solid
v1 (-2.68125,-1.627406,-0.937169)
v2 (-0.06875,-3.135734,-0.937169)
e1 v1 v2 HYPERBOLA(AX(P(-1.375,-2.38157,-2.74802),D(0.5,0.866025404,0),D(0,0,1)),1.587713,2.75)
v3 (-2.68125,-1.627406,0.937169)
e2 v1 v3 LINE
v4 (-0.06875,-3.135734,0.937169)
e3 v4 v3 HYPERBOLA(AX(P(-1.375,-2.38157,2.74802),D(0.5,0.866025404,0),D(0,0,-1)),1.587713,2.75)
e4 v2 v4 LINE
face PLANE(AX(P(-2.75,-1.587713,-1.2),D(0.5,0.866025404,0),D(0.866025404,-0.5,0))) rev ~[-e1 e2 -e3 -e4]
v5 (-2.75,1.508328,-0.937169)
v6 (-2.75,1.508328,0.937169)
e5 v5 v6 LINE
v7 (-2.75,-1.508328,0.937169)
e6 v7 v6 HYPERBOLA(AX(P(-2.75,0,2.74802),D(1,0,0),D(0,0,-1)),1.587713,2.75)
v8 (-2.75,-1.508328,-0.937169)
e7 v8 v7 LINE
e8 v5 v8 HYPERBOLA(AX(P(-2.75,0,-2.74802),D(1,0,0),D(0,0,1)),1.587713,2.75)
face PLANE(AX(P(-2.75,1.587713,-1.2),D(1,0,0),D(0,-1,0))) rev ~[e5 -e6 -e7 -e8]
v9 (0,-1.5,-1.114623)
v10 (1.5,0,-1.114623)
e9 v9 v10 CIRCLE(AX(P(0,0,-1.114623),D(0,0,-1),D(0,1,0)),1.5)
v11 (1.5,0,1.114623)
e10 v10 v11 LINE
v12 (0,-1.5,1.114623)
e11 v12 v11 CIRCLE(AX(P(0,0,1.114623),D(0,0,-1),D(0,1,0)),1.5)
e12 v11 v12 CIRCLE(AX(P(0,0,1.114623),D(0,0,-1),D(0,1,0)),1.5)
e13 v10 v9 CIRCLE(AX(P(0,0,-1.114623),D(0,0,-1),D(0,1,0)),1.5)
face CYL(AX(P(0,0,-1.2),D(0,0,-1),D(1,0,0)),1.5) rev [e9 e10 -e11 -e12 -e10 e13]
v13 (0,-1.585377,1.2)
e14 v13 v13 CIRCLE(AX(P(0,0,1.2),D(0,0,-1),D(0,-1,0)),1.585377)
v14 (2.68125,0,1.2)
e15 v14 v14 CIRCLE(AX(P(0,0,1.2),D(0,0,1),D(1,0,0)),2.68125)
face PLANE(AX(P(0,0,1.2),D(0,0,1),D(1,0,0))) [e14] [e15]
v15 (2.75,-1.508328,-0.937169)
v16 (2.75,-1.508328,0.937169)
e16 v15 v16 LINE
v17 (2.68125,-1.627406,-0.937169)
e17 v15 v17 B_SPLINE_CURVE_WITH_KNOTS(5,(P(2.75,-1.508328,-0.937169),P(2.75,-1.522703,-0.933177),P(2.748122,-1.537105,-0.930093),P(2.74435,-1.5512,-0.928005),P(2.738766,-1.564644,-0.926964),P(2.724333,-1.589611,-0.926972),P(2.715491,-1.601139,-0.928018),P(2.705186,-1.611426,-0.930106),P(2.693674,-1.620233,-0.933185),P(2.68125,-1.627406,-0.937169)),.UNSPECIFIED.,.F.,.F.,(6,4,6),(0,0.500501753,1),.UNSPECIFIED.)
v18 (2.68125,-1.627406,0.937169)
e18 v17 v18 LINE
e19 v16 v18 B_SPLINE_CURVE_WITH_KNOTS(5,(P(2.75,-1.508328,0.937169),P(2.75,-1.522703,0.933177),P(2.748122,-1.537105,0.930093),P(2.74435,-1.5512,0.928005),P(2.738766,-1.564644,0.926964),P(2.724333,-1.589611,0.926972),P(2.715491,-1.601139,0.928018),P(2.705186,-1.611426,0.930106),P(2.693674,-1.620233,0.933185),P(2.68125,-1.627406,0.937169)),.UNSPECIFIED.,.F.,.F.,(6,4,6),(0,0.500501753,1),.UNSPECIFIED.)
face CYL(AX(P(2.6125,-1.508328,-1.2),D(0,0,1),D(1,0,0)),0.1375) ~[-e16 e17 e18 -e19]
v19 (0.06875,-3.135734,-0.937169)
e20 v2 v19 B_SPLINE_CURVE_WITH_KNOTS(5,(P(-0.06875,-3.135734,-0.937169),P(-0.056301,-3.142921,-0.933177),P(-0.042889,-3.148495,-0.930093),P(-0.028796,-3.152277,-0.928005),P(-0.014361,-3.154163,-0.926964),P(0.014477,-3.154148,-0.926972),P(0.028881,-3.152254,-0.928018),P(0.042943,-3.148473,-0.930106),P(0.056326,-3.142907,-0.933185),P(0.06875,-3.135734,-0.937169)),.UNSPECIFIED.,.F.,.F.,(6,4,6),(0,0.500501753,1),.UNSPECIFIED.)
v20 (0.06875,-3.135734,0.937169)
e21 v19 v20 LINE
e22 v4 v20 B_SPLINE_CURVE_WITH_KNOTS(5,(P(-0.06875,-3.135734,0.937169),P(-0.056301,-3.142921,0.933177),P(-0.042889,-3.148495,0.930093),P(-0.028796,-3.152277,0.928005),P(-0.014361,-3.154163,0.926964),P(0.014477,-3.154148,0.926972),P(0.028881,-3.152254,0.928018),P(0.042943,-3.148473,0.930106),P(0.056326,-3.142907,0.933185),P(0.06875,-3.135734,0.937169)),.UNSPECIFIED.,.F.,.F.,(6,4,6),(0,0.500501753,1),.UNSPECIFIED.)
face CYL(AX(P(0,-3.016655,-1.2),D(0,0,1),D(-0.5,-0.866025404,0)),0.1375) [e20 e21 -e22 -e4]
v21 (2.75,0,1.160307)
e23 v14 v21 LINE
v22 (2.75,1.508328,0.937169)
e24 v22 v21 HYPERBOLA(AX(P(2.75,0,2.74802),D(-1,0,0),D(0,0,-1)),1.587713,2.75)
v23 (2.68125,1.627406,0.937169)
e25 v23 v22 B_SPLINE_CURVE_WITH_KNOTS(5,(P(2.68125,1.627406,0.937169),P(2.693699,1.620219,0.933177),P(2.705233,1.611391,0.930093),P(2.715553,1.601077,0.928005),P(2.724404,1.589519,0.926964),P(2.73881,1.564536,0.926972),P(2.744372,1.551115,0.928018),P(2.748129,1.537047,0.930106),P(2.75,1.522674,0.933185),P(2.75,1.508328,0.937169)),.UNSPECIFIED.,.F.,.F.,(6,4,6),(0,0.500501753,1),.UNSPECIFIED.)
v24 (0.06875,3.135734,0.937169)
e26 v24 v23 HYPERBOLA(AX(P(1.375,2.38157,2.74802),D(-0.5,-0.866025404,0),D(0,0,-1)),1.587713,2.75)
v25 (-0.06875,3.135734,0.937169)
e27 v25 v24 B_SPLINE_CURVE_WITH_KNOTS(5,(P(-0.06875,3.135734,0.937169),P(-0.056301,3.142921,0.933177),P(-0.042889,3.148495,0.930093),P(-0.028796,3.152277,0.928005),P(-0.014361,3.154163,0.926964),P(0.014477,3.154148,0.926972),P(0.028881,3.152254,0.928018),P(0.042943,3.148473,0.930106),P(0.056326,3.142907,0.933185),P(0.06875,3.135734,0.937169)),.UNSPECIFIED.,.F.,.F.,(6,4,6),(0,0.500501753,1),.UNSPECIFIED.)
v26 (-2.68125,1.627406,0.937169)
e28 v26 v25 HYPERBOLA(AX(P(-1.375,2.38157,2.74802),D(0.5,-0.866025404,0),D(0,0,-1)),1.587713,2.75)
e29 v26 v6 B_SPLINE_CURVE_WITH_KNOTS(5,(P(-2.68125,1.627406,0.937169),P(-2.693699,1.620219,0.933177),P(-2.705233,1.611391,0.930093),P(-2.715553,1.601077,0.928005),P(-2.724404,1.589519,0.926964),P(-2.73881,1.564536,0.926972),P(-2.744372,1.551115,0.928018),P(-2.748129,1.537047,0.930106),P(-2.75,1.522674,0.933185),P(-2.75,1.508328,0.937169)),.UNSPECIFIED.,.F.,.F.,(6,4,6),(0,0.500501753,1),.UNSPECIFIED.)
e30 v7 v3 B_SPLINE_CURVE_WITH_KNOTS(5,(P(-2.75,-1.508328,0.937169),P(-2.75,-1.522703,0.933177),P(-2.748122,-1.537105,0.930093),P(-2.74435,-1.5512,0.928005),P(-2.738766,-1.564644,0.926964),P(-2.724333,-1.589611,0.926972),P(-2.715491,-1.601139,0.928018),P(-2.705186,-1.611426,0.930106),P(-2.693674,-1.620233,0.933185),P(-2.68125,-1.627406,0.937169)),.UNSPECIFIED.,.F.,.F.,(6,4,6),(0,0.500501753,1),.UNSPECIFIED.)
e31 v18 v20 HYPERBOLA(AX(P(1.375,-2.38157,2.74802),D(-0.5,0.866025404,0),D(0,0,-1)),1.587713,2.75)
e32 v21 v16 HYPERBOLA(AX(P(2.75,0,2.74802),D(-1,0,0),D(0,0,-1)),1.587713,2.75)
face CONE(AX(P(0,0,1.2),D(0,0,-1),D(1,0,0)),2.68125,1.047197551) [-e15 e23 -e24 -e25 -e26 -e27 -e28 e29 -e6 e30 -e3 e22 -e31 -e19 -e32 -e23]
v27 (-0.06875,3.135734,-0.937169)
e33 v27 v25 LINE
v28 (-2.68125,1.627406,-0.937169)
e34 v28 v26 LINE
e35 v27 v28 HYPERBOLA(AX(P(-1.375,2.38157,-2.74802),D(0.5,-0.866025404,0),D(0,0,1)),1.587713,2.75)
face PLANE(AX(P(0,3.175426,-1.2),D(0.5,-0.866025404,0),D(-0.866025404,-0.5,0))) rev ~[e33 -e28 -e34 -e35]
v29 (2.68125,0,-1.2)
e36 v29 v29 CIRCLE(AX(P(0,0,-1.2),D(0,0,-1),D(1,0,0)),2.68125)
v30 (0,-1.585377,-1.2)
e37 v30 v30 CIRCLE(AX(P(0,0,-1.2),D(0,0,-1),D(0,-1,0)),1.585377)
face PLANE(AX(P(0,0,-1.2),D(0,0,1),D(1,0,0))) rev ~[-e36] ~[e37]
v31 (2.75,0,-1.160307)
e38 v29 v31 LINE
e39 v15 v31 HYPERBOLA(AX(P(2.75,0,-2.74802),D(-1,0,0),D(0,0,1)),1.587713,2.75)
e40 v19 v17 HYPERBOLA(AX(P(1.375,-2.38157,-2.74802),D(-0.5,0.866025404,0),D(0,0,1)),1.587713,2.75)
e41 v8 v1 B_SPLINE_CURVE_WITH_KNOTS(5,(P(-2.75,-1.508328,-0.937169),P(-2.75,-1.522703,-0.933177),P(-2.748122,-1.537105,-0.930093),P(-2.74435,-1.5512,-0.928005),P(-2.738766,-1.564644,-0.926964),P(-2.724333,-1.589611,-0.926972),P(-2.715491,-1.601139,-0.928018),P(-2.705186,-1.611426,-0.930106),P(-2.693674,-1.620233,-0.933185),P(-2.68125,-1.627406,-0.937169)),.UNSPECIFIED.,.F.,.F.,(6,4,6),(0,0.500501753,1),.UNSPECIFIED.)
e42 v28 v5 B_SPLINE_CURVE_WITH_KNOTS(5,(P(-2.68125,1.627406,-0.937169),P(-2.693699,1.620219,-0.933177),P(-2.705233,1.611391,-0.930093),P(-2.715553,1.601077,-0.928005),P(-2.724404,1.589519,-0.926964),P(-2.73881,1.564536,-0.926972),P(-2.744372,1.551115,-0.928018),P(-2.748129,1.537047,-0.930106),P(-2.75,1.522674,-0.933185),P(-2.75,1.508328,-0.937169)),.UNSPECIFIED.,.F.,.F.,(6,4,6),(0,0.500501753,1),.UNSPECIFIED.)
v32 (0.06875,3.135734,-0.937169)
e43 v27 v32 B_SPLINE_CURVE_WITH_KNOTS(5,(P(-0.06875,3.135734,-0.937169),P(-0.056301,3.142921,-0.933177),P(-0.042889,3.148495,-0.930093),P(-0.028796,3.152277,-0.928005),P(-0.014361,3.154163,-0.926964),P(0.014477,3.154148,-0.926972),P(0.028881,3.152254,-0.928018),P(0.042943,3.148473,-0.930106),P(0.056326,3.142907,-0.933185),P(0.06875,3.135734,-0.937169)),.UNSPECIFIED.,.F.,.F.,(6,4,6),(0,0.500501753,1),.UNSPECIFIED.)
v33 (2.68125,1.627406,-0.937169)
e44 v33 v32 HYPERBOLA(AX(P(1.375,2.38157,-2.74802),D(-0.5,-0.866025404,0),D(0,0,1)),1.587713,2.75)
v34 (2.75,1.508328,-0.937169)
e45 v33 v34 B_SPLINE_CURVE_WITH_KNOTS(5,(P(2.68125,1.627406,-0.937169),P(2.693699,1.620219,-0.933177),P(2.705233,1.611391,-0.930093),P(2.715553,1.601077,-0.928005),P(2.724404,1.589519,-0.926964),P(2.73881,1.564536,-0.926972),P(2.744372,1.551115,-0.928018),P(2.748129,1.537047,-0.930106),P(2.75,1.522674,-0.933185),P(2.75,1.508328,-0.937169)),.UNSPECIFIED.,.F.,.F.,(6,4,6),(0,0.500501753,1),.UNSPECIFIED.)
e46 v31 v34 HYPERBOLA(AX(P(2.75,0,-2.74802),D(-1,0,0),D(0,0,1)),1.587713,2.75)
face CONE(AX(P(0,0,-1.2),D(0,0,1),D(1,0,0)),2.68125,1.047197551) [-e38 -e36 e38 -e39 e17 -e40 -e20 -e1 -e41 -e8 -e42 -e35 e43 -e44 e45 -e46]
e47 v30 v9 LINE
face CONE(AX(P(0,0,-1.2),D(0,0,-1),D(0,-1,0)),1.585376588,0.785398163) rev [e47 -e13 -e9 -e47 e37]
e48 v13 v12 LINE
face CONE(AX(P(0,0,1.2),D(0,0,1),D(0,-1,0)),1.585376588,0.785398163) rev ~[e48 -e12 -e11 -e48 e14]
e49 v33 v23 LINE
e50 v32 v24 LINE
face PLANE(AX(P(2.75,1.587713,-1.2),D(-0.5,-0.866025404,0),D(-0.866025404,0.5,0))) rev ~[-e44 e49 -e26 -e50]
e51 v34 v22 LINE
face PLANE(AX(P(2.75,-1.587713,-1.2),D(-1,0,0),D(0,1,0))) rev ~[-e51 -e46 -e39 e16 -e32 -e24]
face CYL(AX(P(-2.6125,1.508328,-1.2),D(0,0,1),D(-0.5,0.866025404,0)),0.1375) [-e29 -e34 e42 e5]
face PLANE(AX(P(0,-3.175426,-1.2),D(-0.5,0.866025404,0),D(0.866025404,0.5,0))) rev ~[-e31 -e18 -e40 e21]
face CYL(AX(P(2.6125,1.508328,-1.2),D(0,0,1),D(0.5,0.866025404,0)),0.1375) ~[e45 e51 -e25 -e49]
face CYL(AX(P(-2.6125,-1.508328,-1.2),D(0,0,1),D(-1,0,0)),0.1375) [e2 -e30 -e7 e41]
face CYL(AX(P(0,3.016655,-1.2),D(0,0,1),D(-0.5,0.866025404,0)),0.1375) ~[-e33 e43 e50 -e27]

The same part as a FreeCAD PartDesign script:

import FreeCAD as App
import Part
import Sketcher
from FreeCAD import Vector
Q = App.Units.Quantity


def edges_at(feature, points):
    """Names of the edges that pass closest to the given points."""
    edges = feature.Shape.Edges
    near = lambda p: min(range(len(edges)), key=lambda i: edges[i].distToShape(Part.Vertex(*p))[0])
    return sorted({f"Edge{near(p) + 1}" for p in points})


def faces_at(feature, points):
    """Names of the faces that lie closest to the given points."""
    faces = feature.Shape.Faces
    near = lambda p: min(range(len(faces)), key=lambda i: faces[i].distToShape(Part.Vertex(*p))[0])
    return sorted({f"Face{near(p) + 1}" for p in points})

doc = App.newDocument("Part")
body = doc.addObject("PartDesign::Body", "Body")

sketch1 = body.newObject("Sketcher::SketchObject", "Sketch")
sketch1.AttachmentSupport = (doc.getObject("XY_Plane"), [""])
sketch1.MapMode = "FlatFace"
sketch1.addGeometry([
    Part.LineSegment(Vector(0, 3.2, 0), Vector(-2.8, 1.6, 0)),
    Part.LineSegment(Vector(-2.8, 1.6, 0), Vector(-2.8, -1.6, 0)),
    Part.LineSegment(Vector(-2.8, -1.6, 0), Vector(0, -3.2, 0)),
    Part.LineSegment(Vector(0, -3.2, 0), Vector(2.8, -1.6, 0)),
    Part.LineSegment(Vector(2.8, -1.6, 0), Vector(2.8, 1.6, 0)),
    Part.LineSegment(Vector(2.8, 1.6, 0), Vector(0, 3.2, 0)),
    Part.Circle(Vector(0, 0, 0), Vector(0, 0, 1), 1.5),
], False)
sketch1.addConstraint([
    Sketcher.Constraint("Coincident", 0, 2, 1, 1),
    Sketcher.Constraint("Coincident", 1, 2, 2, 1),
    Sketcher.Constraint("Coincident", 2, 2, 3, 1),
    Sketcher.Constraint("Coincident", 3, 2, 4, 1),
    Sketcher.Constraint("Coincident", 4, 2, 5, 1),
    Sketcher.Constraint("Coincident", 5, 2, 0, 1),
    Sketcher.Constraint("Vertical", 1),
    Sketcher.Constraint("Vertical", 4),
    Sketcher.Constraint("Coincident", 6, 3, -1, 1),
    Sketcher.Constraint("Symmetric", 0, 2, 3, 2, -1, 1),
    Sketcher.Constraint("Symmetric", 2, 2, 5, 2, -1, 1),
    Sketcher.Constraint("PointOnObject", 2, 2, -2),
    Sketcher.Constraint("Parallel", 2, 5),
    Sketcher.Constraint("Horizontal", 1, 2, 3, 2),
    Sketcher.Constraint("Diameter", 6, Q("3 mm")),
    Sketcher.Constraint("Angle", 0, Q("-150 deg")),
    Sketcher.Constraint("DistanceX", 1, 2, 3, 2, Q("5.5 mm")),
    Sketcher.Constraint("DistanceY", 1, 2, 1, 1, Q("3.175426 mm")),
])
pad1 = body.newObject("PartDesign::Pad", "Pad")
pad1.Profile = sketch1
pad1.Type = "TwoLengths"
pad1.Length = 1.2
pad1.Length2 = 1.2
body2 = doc.addObject("PartDesign::Body", "Body001")

sketch2 = body2.newObject("Sketcher::SketchObject", "Sketch001")
sketch2.AttachmentSupport = (doc.getObject("XY_Plane001"), [""])
sketch2.MapMode = "FlatFace"
sketch2.AttachmentOffset = App.Placement(Vector(0, 0, 1.2), App.Rotation())
sketch2.addGeometry([
    Part.LineSegment(Vector(-14.7, 15.2, 0), Vector(-14.7, -15.2, 0)),
    Part.LineSegment(Vector(-14.7, -15.2, 0), Vector(14.7, -15.2, 0)),
    Part.LineSegment(Vector(14.7, -15.2, 0), Vector(14.7, 15.2, 0)),
    Part.LineSegment(Vector(14.7, 15.2, 0), Vector(-14.7, 15.2, 0)),
    Part.Circle(Vector(0, 0, 0), Vector(0, 0, 1), 2.7),
], False)
sketch2.addConstraint([
    Sketcher.Constraint("Coincident", 0, 2, 1, 1),
    Sketcher.Constraint("Coincident", 1, 2, 2, 1),
    Sketcher.Constraint("Coincident", 2, 2, 3, 1),
    Sketcher.Constraint("Coincident", 3, 2, 0, 1),
    Sketcher.Constraint("Vertical", 0),
    Sketcher.Constraint("Horizontal", 1),
    Sketcher.Constraint("Vertical", 2),
    Sketcher.Constraint("Horizontal", 3),
    Sketcher.Constraint("Coincident", 4, 3, -1, 1),
    Sketcher.Constraint("Symmetric", 0, 2, 2, 2, -1, 1),
    Sketcher.Constraint("Diameter", 4, Q("5.3625 mm")),
    Sketcher.Constraint("DistanceX", 1, 1, 1, 2, Q("29.47 mm")),
    Sketcher.Constraint("DistanceY", 0, 2, 0, 1, Q("30.32 mm")),
])
pad2 = body2.newObject("PartDesign::Pad", "Pad001")
pad2.Profile = sketch2
pad2.Length = 5.837958
pad2.Reversed = True
doc.recompute()

datumplane = body2.newObject("PartDesign::Plane", "DatumPlane")
datumplane.AttachmentSupport = (doc.getObject("XY_Plane001"), [""])
datumplane.MapMode = "FlatFace"
datumplane.AttachmentOffset = App.Placement(Vector(0, 0, 1.2), App.Rotation())
draft = body2.newObject("PartDesign::Draft", "Draft")
draft.Base = (pad2, faces_at(pad2, [
    (0, -15.16, -1.719),
    (14.735, 0, -1.719),
    (0, 15.16, -1.719),
    (-14.735, 0, -1.719),
    (-2.681, 0, -1.719),
]))
draft.NeutralPlane = (datumplane, [""])
draft.Angle = 60
draft.Reversed = True
doc.recompute()

boolean = body.newObject("PartDesign::Boolean", "Boolean")
boolean.Type = "Cut"
boolean.addObjects([body2])
doc.recompute()

fillet = body.newObject("PartDesign::Fillet", "Fillet")
fillet.Base = (boolean, edges_at(boolean, [
    (2.75, -1.588, -0.143),
    (0, -3.175, -0.143),
    (-2.75, -1.588, -0.143),
    (-2.75, 1.588, -0.143),
    (2.75, 1.588, -0.143),
    (0, 3.175, -0.143),
]))
fillet.Radius = 0.1375

sketch3 = body.newObject("Sketcher::SketchObject", "Sketch002")
sketch3.AttachmentSupport = (doc.getObject("YZ_Plane"), [""])
sketch3.MapMode = "FlatFace"
sketch3.addGeometry([
    Part.LineSegment(Vector(0, 1.2, 0), Vector(-1.6, 1.2, 0)),
    Part.LineSegment(Vector(-1.6, 1.2, 0), Vector(0, -0.4, 0)),
    Part.LineSegment(Vector(0, -0.4, 0), Vector(0, 1.2, 0)),
], False)
sketch3.addConstraint([
    Sketcher.Constraint("Coincident", 0, 2, 1, 1),
    Sketcher.Constraint("Coincident", 1, 2, 2, 1),
    Sketcher.Constraint("Coincident", 2, 2, 0, 1),
    Sketcher.Constraint("Horizontal", 0),
    Sketcher.Constraint("Vertical", 2),
    Sketcher.Constraint("PointOnObject", 1, 2, -2),
    Sketcher.Constraint("Equal", 0, 2),
    Sketcher.Constraint("DistanceY", -1, 1, 0, 2, Q("1.2 mm")),
    Sketcher.Constraint("Distance", 1, Q("2.242061 mm")),
])
groove = body.newObject("PartDesign::Groove", "Groove")
groove.Profile = sketch3
groove.ReferenceAxis = (sketch3, ["V_Axis"])
groove.Angle = 360
doc.recompute()

mirrored = body.newObject("PartDesign::Mirrored", "Mirrored")
mirrored.Originals = [groove]
mirrored.MirrorPlane = (doc.getObject("XY_Plane"), [""])
body.Tip = mirrored
body3 = doc.addObject("PartDesign::Body", "Body002")

sketch4 = body3.newObject("Sketcher::SketchObject", "Sketch003")
sketch4.AttachmentSupport = (doc.getObject("XY_Plane002"), [""])
sketch4.MapMode = "FlatFace"
sketch4.AttachmentOffset = App.Placement(Vector(0, 0, -1.2), App.Rotation())
sketch4.addGeometry([
    Part.LineSegment(Vector(-14.7, -15.2, 0), Vector(-14.7, 15.2, 0)),
    Part.LineSegment(Vector(-14.7, 15.2, 0), Vector(14.7, 15.2, 0)),
    Part.LineSegment(Vector(14.7, 15.2, 0), Vector(14.7, -15.2, 0)),
    Part.LineSegment(Vector(14.7, -15.2, 0), Vector(-14.7, -15.2, 0)),
    Part.Circle(Vector(0, 0, 0), Vector(0, 0, 1), 2.7),
], False)
sketch4.addConstraint([
    Sketcher.Constraint("Coincident", 0, 2, 1, 1),
    Sketcher.Constraint("Coincident", 1, 2, 2, 1),
    Sketcher.Constraint("Coincident", 2, 2, 3, 1),
    Sketcher.Constraint("Coincident", 3, 2, 0, 1),
    Sketcher.Constraint("Vertical", 0),
    Sketcher.Constraint("Horizontal", 1),
    Sketcher.Constraint("Vertical", 2),
    Sketcher.Constraint("Horizontal", 3),
    Sketcher.Constraint("Coincident", 4, 3, -1, 1),
    Sketcher.Constraint("Symmetric", 0, 2, 2, 2, -1, 1),
    Sketcher.Constraint("Diameter", 4, Q("5.3625 mm")),
    Sketcher.Constraint("DistanceX", 1, 1, 1, 2, Q("29.47 mm")),
    Sketcher.Constraint("DistanceY", 0, 1, 0, 2, Q("30.32 mm")),
])
pad3 = body3.newObject("PartDesign::Pad", "Pad002")
pad3.Profile = sketch4
pad3.Length = 5.837958
doc.recompute()

datumplane2 = body3.newObject("PartDesign::Plane", "DatumPlane001")
datumplane2.AttachmentSupport = (doc.getObject("XY_Plane002"), [""])
datumplane2.MapMode = "FlatFace"
datumplane2.AttachmentOffset = App.Placement(Vector(0, 0, -1.2), App.Rotation())
draft2 = body3.newObject("PartDesign::Draft", "Draft001")
draft2.Base = (pad3, faces_at(pad3, [
    (0, -15.16, 1.719),
    (14.735, 0, 1.719),
    (0, 15.16, 1.719),
    (-14.735, 0, 1.719),
    (-2.681, 0, 1.719),
]))
draft2.NeutralPlane = (datumplane2, [""])
draft2.Angle = 60
draft2.Reversed = False
doc.recompute()

boolean2 = body.newObject("PartDesign::Boolean", "Boolean001")
boolean2.Type = "Cut"
boolean2.addObjects([body3])

doc.recompute()
